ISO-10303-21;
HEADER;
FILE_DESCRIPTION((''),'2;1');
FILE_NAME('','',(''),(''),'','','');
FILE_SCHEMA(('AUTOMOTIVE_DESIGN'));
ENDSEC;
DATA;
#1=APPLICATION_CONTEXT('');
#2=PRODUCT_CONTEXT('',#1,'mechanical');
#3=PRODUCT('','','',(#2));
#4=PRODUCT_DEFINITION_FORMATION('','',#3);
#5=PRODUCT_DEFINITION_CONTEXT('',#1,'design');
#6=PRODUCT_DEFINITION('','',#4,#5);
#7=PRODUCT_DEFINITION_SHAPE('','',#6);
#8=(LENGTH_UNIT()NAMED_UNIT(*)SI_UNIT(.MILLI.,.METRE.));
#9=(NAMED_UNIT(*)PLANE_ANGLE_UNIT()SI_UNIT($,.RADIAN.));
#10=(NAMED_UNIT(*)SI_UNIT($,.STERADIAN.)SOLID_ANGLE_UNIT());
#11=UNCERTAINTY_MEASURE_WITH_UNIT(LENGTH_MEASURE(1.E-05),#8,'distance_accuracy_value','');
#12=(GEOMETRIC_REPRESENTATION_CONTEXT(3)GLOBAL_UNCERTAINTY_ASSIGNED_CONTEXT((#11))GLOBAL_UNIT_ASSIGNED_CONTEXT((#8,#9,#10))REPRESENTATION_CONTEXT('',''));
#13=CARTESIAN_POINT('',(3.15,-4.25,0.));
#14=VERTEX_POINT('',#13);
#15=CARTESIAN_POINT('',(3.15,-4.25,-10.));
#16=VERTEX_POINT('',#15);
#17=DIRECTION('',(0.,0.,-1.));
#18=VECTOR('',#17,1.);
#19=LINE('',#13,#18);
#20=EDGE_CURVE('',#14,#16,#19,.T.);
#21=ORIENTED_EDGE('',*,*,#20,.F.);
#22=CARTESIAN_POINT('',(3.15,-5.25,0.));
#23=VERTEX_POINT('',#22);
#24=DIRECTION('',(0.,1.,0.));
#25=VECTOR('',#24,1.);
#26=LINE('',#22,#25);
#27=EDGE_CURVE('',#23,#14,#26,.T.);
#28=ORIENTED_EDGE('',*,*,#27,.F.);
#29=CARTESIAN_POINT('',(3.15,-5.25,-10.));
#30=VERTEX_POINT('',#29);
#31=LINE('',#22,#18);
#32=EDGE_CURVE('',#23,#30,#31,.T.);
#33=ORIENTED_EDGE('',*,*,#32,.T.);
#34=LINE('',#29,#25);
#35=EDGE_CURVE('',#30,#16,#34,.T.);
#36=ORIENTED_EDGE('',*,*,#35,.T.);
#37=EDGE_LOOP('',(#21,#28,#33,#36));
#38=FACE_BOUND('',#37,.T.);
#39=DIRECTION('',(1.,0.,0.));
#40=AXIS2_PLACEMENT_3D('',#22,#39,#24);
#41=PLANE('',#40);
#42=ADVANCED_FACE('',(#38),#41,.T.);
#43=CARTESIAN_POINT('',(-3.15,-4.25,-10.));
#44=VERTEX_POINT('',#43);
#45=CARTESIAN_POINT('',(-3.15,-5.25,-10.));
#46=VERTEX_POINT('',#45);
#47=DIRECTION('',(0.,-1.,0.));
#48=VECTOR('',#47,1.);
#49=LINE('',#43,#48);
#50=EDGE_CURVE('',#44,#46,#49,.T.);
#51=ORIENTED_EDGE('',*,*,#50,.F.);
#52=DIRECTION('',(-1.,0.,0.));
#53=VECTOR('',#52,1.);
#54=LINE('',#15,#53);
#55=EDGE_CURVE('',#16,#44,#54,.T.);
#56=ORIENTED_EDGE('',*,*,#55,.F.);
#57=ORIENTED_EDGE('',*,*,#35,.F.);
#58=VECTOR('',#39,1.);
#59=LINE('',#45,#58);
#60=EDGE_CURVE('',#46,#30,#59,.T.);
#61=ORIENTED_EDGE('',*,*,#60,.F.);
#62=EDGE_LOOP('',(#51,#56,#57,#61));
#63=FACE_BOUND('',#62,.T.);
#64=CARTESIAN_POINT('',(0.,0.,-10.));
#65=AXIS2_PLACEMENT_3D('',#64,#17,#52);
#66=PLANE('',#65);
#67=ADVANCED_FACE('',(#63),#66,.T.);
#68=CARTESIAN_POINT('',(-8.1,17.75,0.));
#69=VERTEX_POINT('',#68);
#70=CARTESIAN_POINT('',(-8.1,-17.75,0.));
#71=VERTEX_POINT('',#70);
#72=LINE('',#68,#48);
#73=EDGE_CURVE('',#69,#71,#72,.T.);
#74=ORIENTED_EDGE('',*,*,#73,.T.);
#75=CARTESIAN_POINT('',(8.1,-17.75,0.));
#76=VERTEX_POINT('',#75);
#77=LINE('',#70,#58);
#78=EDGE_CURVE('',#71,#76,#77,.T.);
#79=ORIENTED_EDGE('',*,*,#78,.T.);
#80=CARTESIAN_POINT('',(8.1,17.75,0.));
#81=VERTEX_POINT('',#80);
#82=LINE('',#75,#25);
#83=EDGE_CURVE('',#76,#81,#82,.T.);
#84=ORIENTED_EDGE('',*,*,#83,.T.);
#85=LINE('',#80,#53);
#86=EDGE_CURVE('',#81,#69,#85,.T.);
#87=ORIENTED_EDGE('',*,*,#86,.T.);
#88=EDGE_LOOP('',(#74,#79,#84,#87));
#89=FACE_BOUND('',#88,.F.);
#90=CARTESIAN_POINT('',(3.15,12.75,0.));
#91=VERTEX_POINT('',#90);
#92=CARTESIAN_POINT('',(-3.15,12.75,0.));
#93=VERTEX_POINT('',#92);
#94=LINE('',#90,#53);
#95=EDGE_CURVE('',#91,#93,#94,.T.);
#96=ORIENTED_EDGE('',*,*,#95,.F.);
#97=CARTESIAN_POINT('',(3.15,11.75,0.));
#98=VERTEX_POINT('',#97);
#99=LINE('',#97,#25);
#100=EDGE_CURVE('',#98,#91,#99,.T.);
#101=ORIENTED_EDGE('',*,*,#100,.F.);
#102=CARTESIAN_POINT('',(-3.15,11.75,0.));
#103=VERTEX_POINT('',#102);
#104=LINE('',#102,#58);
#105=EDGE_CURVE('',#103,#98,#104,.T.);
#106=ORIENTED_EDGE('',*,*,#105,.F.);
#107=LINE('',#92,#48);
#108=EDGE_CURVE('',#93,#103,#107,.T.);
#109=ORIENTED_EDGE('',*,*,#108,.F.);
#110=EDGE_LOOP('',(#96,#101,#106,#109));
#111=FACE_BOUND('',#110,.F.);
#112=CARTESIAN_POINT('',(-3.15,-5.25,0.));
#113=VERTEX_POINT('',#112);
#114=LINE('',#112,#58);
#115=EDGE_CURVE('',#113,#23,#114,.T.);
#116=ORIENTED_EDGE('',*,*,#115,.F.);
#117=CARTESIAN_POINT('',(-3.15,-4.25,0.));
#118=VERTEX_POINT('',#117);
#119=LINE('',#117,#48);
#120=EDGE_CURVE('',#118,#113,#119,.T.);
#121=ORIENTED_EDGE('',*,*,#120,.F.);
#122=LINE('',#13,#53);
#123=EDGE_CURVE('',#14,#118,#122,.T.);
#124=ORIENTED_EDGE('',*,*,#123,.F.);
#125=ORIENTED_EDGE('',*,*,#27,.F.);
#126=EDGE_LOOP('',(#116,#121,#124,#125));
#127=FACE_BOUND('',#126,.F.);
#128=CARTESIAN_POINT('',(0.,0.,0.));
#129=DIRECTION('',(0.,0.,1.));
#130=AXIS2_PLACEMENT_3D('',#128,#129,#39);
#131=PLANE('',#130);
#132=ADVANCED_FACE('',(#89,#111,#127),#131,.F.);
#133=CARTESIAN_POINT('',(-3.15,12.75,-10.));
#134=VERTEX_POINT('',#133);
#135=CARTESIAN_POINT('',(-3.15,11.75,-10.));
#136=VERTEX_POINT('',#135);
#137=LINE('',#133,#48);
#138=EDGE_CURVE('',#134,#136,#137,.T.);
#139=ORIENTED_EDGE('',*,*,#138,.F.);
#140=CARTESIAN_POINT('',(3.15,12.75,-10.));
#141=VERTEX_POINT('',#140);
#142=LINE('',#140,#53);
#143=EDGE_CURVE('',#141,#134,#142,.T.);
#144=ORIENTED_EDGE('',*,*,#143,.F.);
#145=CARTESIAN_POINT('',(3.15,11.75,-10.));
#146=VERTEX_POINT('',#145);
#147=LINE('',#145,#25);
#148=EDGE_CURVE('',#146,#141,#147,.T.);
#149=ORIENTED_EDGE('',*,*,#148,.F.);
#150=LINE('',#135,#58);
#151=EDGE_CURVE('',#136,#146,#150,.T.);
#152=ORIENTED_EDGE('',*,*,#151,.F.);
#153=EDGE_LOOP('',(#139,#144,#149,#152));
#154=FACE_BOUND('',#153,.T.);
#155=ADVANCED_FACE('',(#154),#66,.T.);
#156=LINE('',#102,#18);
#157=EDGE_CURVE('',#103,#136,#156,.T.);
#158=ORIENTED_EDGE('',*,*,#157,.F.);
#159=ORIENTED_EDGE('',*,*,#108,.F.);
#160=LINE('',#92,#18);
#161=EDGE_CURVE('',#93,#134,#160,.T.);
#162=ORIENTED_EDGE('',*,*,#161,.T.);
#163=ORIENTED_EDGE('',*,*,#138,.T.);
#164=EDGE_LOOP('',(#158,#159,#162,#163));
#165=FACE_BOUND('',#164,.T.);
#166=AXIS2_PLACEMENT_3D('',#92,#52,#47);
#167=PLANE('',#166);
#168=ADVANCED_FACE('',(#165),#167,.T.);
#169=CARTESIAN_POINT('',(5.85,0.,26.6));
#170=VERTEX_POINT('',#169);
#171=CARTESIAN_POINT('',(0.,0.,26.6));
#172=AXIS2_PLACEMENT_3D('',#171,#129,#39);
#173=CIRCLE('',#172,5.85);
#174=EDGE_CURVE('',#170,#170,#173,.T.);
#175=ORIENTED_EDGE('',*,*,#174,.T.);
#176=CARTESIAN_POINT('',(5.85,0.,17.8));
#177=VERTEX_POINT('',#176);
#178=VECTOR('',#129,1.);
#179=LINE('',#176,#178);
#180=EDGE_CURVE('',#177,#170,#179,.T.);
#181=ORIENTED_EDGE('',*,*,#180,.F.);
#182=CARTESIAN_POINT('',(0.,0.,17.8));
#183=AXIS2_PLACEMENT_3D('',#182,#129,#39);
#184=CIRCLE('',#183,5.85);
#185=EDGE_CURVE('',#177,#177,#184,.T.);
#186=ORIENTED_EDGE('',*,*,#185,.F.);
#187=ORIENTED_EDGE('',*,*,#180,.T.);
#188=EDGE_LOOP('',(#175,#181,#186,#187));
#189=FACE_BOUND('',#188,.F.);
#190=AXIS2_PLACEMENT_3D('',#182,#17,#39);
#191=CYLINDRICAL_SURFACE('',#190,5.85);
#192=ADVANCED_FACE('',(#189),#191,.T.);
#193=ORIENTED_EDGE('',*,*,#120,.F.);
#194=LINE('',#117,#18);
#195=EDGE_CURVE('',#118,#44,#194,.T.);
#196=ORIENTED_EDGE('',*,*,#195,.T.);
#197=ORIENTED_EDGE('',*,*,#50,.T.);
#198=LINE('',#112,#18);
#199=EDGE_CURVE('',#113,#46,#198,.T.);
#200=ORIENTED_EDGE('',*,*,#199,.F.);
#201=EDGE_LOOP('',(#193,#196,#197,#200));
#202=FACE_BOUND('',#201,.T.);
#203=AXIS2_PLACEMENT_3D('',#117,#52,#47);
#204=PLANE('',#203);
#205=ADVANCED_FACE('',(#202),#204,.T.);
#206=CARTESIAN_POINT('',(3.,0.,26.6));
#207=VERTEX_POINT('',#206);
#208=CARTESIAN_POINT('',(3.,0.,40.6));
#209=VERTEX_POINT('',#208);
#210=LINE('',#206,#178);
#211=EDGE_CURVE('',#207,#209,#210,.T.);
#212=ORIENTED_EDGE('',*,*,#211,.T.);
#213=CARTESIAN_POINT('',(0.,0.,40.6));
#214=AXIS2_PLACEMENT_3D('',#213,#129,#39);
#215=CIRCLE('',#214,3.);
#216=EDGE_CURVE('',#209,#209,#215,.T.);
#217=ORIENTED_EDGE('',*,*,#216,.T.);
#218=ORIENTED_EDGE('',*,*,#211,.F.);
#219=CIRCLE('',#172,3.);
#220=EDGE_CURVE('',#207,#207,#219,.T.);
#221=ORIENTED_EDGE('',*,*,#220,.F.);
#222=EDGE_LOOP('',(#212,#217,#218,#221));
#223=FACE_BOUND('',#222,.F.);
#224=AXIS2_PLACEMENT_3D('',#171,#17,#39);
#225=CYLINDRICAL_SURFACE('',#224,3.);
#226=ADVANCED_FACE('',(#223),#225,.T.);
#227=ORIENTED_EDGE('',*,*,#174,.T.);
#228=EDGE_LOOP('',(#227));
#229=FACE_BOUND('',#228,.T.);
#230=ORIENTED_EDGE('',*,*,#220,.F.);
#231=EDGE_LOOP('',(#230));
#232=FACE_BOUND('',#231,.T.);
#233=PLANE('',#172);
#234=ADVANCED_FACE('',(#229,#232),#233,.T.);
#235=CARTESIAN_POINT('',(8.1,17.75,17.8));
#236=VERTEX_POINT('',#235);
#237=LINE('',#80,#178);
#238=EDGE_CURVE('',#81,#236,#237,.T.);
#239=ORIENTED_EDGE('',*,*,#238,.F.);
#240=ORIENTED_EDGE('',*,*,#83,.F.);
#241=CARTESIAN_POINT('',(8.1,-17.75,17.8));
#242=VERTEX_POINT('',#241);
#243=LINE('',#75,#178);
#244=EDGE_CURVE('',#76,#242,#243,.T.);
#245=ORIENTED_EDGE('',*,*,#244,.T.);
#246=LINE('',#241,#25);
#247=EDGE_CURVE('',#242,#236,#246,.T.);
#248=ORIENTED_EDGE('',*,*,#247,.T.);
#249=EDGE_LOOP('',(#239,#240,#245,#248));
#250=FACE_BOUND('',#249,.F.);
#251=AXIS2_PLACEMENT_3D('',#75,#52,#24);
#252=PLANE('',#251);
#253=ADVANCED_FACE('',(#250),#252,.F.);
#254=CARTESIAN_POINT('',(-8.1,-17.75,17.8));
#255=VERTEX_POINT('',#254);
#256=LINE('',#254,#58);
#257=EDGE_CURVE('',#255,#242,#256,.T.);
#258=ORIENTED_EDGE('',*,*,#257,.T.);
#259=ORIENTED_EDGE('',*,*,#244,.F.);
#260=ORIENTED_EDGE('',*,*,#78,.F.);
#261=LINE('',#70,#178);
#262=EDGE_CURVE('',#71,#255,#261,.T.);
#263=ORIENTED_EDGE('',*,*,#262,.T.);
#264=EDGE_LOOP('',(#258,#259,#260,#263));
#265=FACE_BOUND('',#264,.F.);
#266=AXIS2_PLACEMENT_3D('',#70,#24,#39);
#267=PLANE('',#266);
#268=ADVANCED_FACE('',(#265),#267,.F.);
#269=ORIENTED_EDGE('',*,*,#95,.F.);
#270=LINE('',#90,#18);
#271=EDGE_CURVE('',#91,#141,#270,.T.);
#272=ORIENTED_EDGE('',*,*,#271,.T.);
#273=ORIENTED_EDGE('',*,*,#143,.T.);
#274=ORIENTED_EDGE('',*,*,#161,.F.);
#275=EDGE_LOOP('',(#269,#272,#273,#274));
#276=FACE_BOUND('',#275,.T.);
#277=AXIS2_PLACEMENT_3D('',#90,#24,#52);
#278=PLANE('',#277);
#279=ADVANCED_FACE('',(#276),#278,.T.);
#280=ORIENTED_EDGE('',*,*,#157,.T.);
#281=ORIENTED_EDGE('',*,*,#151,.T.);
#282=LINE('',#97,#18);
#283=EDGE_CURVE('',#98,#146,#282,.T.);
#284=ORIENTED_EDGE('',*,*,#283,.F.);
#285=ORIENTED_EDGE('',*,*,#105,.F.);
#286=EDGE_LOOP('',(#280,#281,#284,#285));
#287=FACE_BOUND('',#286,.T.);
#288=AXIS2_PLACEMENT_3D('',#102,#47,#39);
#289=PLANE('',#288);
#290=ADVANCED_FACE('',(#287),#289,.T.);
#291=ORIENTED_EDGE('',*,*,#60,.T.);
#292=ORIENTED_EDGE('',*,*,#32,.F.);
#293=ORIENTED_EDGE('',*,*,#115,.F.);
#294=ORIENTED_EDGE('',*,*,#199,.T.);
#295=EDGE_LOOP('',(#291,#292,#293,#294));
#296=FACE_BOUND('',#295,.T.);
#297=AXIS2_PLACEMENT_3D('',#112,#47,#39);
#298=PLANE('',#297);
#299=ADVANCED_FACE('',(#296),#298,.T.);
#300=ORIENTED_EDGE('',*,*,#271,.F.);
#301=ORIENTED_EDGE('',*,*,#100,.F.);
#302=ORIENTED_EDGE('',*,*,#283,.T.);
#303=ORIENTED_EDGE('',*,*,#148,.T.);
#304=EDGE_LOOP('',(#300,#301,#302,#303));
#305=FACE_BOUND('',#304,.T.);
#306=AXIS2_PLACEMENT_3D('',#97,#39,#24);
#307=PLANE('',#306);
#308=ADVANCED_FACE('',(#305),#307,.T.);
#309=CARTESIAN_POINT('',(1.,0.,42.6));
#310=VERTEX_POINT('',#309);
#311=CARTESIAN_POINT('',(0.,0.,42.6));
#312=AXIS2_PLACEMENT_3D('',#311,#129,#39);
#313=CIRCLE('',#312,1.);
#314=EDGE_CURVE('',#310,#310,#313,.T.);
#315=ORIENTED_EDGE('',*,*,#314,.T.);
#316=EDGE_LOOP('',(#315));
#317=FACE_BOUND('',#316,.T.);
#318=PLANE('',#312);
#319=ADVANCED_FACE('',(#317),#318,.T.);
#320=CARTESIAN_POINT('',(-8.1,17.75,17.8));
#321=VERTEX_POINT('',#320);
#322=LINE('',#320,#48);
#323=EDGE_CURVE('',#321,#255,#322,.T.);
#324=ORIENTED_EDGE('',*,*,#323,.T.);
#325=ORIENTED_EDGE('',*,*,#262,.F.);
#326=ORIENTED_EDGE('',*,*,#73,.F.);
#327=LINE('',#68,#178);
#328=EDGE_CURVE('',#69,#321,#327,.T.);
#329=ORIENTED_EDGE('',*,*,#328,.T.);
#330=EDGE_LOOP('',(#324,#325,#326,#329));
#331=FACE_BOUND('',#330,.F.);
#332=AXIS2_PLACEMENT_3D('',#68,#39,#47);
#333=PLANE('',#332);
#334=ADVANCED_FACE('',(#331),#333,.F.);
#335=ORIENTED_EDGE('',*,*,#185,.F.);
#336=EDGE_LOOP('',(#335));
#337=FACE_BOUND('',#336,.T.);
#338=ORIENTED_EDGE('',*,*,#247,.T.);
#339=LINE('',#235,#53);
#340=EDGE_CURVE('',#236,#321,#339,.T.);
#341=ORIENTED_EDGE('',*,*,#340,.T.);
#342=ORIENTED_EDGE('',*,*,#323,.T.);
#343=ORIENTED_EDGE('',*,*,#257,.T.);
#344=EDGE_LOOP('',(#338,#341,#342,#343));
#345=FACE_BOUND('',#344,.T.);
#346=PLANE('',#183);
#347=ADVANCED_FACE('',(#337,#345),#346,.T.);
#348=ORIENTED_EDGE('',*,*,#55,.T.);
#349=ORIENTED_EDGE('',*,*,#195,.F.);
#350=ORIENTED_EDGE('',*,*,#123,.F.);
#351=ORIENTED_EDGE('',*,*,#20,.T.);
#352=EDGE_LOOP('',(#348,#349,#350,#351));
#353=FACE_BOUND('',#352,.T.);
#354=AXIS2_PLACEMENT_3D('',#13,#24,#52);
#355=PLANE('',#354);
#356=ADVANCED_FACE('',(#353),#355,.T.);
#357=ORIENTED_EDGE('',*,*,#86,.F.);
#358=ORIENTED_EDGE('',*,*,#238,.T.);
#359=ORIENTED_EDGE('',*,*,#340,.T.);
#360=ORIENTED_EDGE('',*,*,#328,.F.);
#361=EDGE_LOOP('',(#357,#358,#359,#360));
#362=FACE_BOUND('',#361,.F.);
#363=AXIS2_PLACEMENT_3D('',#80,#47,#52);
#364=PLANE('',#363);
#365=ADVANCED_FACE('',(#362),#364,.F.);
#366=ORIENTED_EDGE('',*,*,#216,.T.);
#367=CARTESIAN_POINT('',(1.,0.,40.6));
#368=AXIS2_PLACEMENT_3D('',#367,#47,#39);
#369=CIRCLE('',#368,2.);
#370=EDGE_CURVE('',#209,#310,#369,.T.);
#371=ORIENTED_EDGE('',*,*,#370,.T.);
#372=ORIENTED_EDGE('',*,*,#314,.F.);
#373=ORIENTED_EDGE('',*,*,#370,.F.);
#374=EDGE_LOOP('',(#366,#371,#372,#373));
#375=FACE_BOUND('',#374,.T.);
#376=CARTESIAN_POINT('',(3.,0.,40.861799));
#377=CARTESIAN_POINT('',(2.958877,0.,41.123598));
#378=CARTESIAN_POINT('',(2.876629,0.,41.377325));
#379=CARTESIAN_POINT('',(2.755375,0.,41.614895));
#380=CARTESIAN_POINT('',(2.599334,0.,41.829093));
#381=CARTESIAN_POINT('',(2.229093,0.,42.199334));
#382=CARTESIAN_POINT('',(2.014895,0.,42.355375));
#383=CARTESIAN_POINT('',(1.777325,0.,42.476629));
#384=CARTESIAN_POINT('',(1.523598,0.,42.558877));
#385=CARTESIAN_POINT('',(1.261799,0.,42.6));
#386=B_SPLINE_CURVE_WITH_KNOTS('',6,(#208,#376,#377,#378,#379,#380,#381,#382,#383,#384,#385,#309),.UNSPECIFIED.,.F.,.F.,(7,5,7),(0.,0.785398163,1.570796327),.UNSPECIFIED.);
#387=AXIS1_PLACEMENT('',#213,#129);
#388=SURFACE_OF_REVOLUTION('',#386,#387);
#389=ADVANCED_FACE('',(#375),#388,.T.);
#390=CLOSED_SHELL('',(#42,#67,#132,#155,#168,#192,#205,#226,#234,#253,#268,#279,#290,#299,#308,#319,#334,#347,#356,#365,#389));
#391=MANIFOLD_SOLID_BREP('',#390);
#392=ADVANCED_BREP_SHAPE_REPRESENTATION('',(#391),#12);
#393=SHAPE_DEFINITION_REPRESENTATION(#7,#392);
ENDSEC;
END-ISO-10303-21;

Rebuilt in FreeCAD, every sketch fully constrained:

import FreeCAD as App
import Part
import Sketcher

V = App.Vector
Q = App.Units.Quantity


def edges_at(feature, points):
    """Names of the edges that pass closest to the given points."""
    edges = feature.Shape.Edges
    near = lambda p: min(range(len(edges)), key=lambda i: edges[i].distToShape(Part.Vertex(*p))[0])
    return sorted({f"Edge{near(p) + 1}" for p in points})

doc = App.newDocument("Part")
body = doc.addObject("PartDesign::Body", "Body")

# Sketch on XY plane
sketch1 = body.newObject("Sketcher::SketchObject", "Sketch")
sketch1.AttachmentSupport = (doc.getObject("XY_Plane"), [""])
sketch1.MapMode = "FlatFace"
sketch1.addGeometry([
    Part.LineSegment(V(-8, 18, 0), V(-8, -18, 0)),
    Part.LineSegment(V(-8, -18, 0), V(8, -18, 0)),
    Part.LineSegment(V(8, -18, 0), V(8, 18, 0)),
    Part.LineSegment(V(8, 18, 0), V(-8, 18, 0)),
], False)
sketch1.addConstraint([
    Sketcher.Constraint("Coincident", 0, 2, 1, 1),
    Sketcher.Constraint("Coincident", 1, 2, 2, 1),
    Sketcher.Constraint("Coincident", 2, 2, 3, 1),
    Sketcher.Constraint("Coincident", 3, 2, 0, 1),
    Sketcher.Constraint("Vertical", 0),
    Sketcher.Constraint("Horizontal", 1),
    Sketcher.Constraint("Vertical", 2),
    Sketcher.Constraint("Horizontal", 3),
    Sketcher.Constraint("Symmetric", 0, 2, 2, 2, -1, 1),
    Sketcher.Constraint("DistanceX", 1, 1, 1, 2, Q("16.2 mm")),
    Sketcher.Constraint("DistanceY", 0, 2, 0, 1, Q("35.5 mm")),
])
pad1 = body.newObject("PartDesign::Pad", "Pad")
pad1.Profile = sketch1
pad1.Length = 17.8

# Sketch on XY plane
sketch2 = body.newObject("Sketcher::SketchObject", "Sketch001")
sketch2.AttachmentSupport = (doc.getObject("XY_Plane"), [""])
sketch2.MapMode = "FlatFace"
sketch2.AttachmentOffset = App.Placement(V(0, 0, 17.8), App.Rotation())
sketch2.addGeometry(Part.Circle(V(0, 0, 0), V(0, 0, 1), 6), False)
sketch2.addConstraint([
    Sketcher.Constraint("Coincident", 0, 3, -1, 1),
    Sketcher.Constraint("Diameter", 0, Q("11.7 mm")),
])
pad2 = body.newObject("PartDesign::Pad", "Pad001")
pad2.Profile = sketch2
pad2.Length = 8.8

# Sketch on XY plane
sketch3 = body.newObject("Sketcher::SketchObject", "Sketch002")
sketch3.AttachmentSupport = (doc.getObject("XY_Plane"), [""])
sketch3.MapMode = "FlatFace"
sketch3.AttachmentOffset = App.Placement(V(0, 0, 26.6), App.Rotation())
sketch3.addGeometry(Part.Circle(V(0, 0, 0), V(0, 0, 1), 3), False)
sketch3.addConstraint([
    Sketcher.Constraint("Coincident", 0, 3, -1, 1),
    Sketcher.Constraint("Diameter", 0, Q("6 mm")),
])
pad3 = body.newObject("PartDesign::Pad", "Pad002")
pad3.Profile = sketch3
pad3.Length = 16
doc.recompute()

fillet = body.newObject("PartDesign::Fillet", "Fillet")
fillet.Base = (pad3, edges_at(pad3, [(-3, 0, 42.6)]))
fillet.Radius = 2

# Sketch on XY plane
sketch4 = body.newObject("Sketcher::SketchObject", "Sketch003")
sketch4.AttachmentSupport = (doc.getObject("XY_Plane"), [""])
sketch4.MapMode = "FlatFace"
sketch4.addGeometry([
    Part.LineSegment(V(-3.1, 12.8, 0), V(3.1, 12.8, 0)),  # 0
    Part.LineSegment(V(3.1, 12.8, 0), V(3.1, 11.8, 0)),  # 1
    Part.LineSegment(V(3.1, 11.8, 0), V(-3.1, 11.8, 0)),  # 2
    Part.LineSegment(V(-3.1, 11.8, 0), V(-3.1, 12.8, 0)),  # 3
    Part.LineSegment(V(-3.1, -4.2, 0), V(3.1, -4.2, 0)),  # 4
    Part.LineSegment(V(3.1, -4.2, 0), V(3.1, -5.2, 0)),  # 5
    Part.LineSegment(V(3.1, -5.2, 0), V(-3.1, -5.2, 0)),  # 6
    Part.LineSegment(V(-3.1, -5.2, 0), V(-3.1, -4.2, 0)),  # 7
], False)
sketch4.addConstraint([
    Sketcher.Constraint("Coincident", 0, 2, 1, 1),
    Sketcher.Constraint("Coincident", 1, 2, 2, 1),
    Sketcher.Constraint("Coincident", 2, 2, 3, 1),
    Sketcher.Constraint("Coincident", 3, 2, 0, 1),
    Sketcher.Constraint("Coincident", 4, 2, 5, 1),
    Sketcher.Constraint("Coincident", 5, 2, 6, 1),
    Sketcher.Constraint("Coincident", 6, 2, 7, 1),
    Sketcher.Constraint("Coincident", 7, 2, 4, 1),
    Sketcher.Constraint("Horizontal", 0),
    Sketcher.Constraint("Vertical", 1),
    Sketcher.Constraint("Horizontal", 2),
    Sketcher.Constraint("Vertical", 3),
    Sketcher.Constraint("Horizontal", 4),
    Sketcher.Constraint("Vertical", 5),
    Sketcher.Constraint("Horizontal", 6),
    Sketcher.Constraint("Vertical", 7),
    Sketcher.Constraint("Vertical", 1, 2, 4, 2),
    Sketcher.Constraint("Vertical", 3, 2, 6, 2),
    Sketcher.Constraint("Equal", 3, 5),
    Sketcher.Constraint("DistanceY", 1, 2, 1, 1, Q("1 mm")),
    Sketcher.Constraint("DistanceX", 0, 1, 0, 2, Q("6.3 mm")),
    Sketcher.Constraint("DistanceY", 4, 2, 1, 2, Q("16 mm")),
    Sketcher.Constraint("DistanceX", -1, 1, 0, 2, Q("3.15 mm")),
    Sketcher.Constraint("DistanceY", -1, 1, 0, 2, Q("12.75 mm")),
])
pad4 = body.newObject("PartDesign::Pad", "Pad003")
pad4.Profile = sketch4
pad4.Length = 10
pad4.Reversed = True

doc.recompute()
